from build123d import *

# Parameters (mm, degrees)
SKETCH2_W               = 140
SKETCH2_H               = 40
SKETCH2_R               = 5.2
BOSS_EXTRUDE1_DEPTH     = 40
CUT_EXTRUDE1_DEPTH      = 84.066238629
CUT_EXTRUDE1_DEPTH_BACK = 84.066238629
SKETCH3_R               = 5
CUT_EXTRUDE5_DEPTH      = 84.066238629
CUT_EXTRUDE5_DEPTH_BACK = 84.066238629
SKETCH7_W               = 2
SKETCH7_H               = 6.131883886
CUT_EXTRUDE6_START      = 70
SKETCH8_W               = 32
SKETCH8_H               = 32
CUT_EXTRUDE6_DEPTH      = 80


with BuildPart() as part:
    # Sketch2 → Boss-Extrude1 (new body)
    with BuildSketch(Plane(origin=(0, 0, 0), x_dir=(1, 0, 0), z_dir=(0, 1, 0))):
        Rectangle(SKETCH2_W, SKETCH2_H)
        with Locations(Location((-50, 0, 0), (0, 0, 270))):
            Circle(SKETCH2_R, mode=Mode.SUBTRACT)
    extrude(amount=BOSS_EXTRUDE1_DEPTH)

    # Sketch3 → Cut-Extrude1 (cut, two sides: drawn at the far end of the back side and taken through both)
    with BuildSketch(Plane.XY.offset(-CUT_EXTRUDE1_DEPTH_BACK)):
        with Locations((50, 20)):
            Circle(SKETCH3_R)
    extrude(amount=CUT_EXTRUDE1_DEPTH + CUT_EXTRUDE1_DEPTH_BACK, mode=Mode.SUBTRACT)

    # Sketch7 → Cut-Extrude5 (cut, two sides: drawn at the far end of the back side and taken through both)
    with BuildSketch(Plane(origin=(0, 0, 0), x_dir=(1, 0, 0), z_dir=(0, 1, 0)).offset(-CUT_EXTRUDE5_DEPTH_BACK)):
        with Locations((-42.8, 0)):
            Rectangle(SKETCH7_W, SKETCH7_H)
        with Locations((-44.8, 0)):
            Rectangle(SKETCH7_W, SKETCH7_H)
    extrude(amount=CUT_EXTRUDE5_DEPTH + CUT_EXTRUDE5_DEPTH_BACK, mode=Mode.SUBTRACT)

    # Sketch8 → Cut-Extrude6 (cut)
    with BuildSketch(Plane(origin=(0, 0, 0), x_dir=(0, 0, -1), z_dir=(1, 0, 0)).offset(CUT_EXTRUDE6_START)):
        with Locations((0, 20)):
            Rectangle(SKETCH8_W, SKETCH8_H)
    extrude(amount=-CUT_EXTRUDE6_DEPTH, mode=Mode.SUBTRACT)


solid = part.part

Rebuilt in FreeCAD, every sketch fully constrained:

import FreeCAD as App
import Part
import Sketcher

doc = App.newDocument("Part")
body = doc.addObject("PartDesign::Body", "Body")

# Sketch on XZ plane
sketch1 = body.newObject("Sketcher::SketchObject", "Sketch")
sketch1.AttachmentSupport = (doc.getObject("XZ_Plane"), [""])
sketch1.MapMode = "FlatFace"
sketch1.addGeometry([
    Part.LineSegment(App.Vector(-70, -20, 0), App.Vector(-70, 20, 0)),  # 0
    Part.LineSegment(App.Vector(-70, 20, 0), App.Vector(70, 20, 0)),  # 1
    Part.LineSegment(App.Vector(70, 20, 0), App.Vector(70, -20, 0)),  # 2
    Part.LineSegment(App.Vector(70, -20, 0), App.Vector(-70, -20, 0)),  # 3
    Part.Circle(App.Vector(-50, 0, 0), App.Vector(0, 0, 1), 5.2),  # 4
], False)
sketch1.addConstraint([
    Sketcher.Constraint("Coincident", 0, 2, 1, 1),
    Sketcher.Constraint("Coincident", 1, 2, 2, 1),
    Sketcher.Constraint("Coincident", 2, 2, 3, 1),
    Sketcher.Constraint("Coincident", 3, 2, 0, 1),
    Sketcher.Constraint("Vertical", 0),
    Sketcher.Constraint("Horizontal", 1),
    Sketcher.Constraint("Vertical", 2),
    Sketcher.Constraint("Horizontal", 3),
    Sketcher.Constraint("Symmetric", 0, 2, 2, 2, -1, 1),
    Sketcher.Constraint("PointOnObject", 4, 3, -1),
    Sketcher.Constraint("Diameter", 4, 10.4),
    Sketcher.Constraint("DistanceX", 1, 1, 1, 2, 140.0),
    Sketcher.Constraint("DistanceY", 0, 1, 0, 2, 40.0),
    Sketcher.Constraint("DistanceX", 4, 3, -1, 1, 50.0),
])
pad1 = body.newObject("PartDesign::Pad", "Pad")
pad1.Profile = sketch1
pad1.Length = 40
pad1.Reversed = True

# Sketch on XY plane
sketch2 = body.newObject("Sketcher::SketchObject", "Sketch001")
sketch2.AttachmentSupport = (doc.getObject("XY_Plane"), [""])
sketch2.MapMode = "FlatFace"
sketch2.addGeometry(Part.Circle(App.Vector(50, 20, 0), App.Vector(0, 0, 1), 5), False)
sketch2.addConstraint([
    Sketcher.Constraint("Diameter", 0, 10.0),
    Sketcher.Constraint("DistanceX", -1, 1, 0, 3, 50.0),
    Sketcher.Constraint("DistanceY", -1, 1, 0, 3, 20.0),
])
pocket1 = body.newObject("PartDesign::Pocket", "Pocket")
pocket1.Profile = sketch2
pocket1.Type = "ThroughAll"
pocket1.Midplane = True

# Sketch on XZ plane
sketch3 = body.newObject("Sketcher::SketchObject", "Sketch002")
sketch3.AttachmentSupport = (doc.getObject("XZ_Plane"), [""])
sketch3.MapMode = "FlatFace"
sketch3.addGeometry([
    Part.LineSegment(App.Vector(-41.8, 3.065942, 0), App.Vector(-41.8, -3.065942, 0)),
    Part.LineSegment(App.Vector(-41.8, -3.065942, 0), App.Vector(-45.8, -3.065942, 0)),
    Part.LineSegment(App.Vector(-45.8, -3.065942, 0), App.Vector(-45.8, 3.065942, 0)),
    Part.LineSegment(App.Vector(-45.8, 3.065942, 0), App.Vector(-41.8, 3.065942, 0)),
], False)
sketch3.addConstraint([
    Sketcher.Constraint("Coincident", 0, 2, 1, 1),
    Sketcher.Constraint("Coincident", 1, 2, 2, 1),
    Sketcher.Constraint("Coincident", 2, 2, 3, 1),
    Sketcher.Constraint("Coincident", 3, 2, 0, 1),
    Sketcher.Constraint("Vertical", 0),
    Sketcher.Constraint("Horizontal", 1),
    Sketcher.Constraint("Vertical", 2),
    Sketcher.Constraint("Horizontal", 3),
    Sketcher.Constraint("DistanceX", 1, 2, 1, 1, 4.0),
    Sketcher.Constraint("DistanceX", 0, 2, -1, 1, 41.8),
    Sketcher.Constraint("DistanceY", 0, 2, 0, 1, 6.131884),
    Sketcher.Constraint("DistanceY", 0, 2, -1, 1, 3.065942),
])
pocket2 = body.newObject("PartDesign::Pocket", "Pocket001")
pocket2.Profile = sketch3
pocket2.Type = "ThroughAll"
pocket2.Midplane = True

# Sketch on YZ plane
sketch4 = body.newObject("Sketcher::SketchObject", "Sketch003")
sketch4.AttachmentSupport = (doc.getObject("YZ_Plane"), [""])
sketch4.MapMode = "FlatFace"
sketch4.AttachmentOffset = App.Placement(App.Vector(0, 0, 70), App.Rotation())
sketch4.addGeometry([
    Part.LineSegment(App.Vector(36, 16, 0), App.Vector(4, 16, 0)),
    Part.LineSegment(App.Vector(4, 16, 0), App.Vector(4, -16, 0)),
    Part.LineSegment(App.Vector(4, -16, 0), App.Vector(36, -16, 0)),
    Part.LineSegment(App.Vector(36, -16, 0), App.Vector(36, 16, 0)),
], False)
sketch4.addConstraint([
    Sketcher.Constraint("Coincident", 0, 2, 1, 1),
    Sketcher.Constraint("Coincident", 1, 2, 2, 1),
    Sketcher.Constraint("Coincident", 2, 2, 3, 1),
    Sketcher.Constraint("Coincident", 3, 2, 0, 1),
    Sketcher.Constraint("Horizontal", 0),
    Sketcher.Constraint("Vertical", 1),
    Sketcher.Constraint("Horizontal", 2),
    Sketcher.Constraint("Vertical", 3),
    Sketcher.Constraint("Equal", 2, 1),
    Sketcher.Constraint("DistanceX", 0, 2, 0, 1, 32.0),
    Sketcher.Constraint("DistanceX", -1, 1, 0, 2, 4.0),
    Sketcher.Constraint("DistanceY", -1, 1, 0, 2, 16.0),
])
pocket3 = body.newObject("PartDesign::Pocket", "Pocket002")
pocket3.Profile = sketch4
pocket3.Length = 80

doc.recompute()
